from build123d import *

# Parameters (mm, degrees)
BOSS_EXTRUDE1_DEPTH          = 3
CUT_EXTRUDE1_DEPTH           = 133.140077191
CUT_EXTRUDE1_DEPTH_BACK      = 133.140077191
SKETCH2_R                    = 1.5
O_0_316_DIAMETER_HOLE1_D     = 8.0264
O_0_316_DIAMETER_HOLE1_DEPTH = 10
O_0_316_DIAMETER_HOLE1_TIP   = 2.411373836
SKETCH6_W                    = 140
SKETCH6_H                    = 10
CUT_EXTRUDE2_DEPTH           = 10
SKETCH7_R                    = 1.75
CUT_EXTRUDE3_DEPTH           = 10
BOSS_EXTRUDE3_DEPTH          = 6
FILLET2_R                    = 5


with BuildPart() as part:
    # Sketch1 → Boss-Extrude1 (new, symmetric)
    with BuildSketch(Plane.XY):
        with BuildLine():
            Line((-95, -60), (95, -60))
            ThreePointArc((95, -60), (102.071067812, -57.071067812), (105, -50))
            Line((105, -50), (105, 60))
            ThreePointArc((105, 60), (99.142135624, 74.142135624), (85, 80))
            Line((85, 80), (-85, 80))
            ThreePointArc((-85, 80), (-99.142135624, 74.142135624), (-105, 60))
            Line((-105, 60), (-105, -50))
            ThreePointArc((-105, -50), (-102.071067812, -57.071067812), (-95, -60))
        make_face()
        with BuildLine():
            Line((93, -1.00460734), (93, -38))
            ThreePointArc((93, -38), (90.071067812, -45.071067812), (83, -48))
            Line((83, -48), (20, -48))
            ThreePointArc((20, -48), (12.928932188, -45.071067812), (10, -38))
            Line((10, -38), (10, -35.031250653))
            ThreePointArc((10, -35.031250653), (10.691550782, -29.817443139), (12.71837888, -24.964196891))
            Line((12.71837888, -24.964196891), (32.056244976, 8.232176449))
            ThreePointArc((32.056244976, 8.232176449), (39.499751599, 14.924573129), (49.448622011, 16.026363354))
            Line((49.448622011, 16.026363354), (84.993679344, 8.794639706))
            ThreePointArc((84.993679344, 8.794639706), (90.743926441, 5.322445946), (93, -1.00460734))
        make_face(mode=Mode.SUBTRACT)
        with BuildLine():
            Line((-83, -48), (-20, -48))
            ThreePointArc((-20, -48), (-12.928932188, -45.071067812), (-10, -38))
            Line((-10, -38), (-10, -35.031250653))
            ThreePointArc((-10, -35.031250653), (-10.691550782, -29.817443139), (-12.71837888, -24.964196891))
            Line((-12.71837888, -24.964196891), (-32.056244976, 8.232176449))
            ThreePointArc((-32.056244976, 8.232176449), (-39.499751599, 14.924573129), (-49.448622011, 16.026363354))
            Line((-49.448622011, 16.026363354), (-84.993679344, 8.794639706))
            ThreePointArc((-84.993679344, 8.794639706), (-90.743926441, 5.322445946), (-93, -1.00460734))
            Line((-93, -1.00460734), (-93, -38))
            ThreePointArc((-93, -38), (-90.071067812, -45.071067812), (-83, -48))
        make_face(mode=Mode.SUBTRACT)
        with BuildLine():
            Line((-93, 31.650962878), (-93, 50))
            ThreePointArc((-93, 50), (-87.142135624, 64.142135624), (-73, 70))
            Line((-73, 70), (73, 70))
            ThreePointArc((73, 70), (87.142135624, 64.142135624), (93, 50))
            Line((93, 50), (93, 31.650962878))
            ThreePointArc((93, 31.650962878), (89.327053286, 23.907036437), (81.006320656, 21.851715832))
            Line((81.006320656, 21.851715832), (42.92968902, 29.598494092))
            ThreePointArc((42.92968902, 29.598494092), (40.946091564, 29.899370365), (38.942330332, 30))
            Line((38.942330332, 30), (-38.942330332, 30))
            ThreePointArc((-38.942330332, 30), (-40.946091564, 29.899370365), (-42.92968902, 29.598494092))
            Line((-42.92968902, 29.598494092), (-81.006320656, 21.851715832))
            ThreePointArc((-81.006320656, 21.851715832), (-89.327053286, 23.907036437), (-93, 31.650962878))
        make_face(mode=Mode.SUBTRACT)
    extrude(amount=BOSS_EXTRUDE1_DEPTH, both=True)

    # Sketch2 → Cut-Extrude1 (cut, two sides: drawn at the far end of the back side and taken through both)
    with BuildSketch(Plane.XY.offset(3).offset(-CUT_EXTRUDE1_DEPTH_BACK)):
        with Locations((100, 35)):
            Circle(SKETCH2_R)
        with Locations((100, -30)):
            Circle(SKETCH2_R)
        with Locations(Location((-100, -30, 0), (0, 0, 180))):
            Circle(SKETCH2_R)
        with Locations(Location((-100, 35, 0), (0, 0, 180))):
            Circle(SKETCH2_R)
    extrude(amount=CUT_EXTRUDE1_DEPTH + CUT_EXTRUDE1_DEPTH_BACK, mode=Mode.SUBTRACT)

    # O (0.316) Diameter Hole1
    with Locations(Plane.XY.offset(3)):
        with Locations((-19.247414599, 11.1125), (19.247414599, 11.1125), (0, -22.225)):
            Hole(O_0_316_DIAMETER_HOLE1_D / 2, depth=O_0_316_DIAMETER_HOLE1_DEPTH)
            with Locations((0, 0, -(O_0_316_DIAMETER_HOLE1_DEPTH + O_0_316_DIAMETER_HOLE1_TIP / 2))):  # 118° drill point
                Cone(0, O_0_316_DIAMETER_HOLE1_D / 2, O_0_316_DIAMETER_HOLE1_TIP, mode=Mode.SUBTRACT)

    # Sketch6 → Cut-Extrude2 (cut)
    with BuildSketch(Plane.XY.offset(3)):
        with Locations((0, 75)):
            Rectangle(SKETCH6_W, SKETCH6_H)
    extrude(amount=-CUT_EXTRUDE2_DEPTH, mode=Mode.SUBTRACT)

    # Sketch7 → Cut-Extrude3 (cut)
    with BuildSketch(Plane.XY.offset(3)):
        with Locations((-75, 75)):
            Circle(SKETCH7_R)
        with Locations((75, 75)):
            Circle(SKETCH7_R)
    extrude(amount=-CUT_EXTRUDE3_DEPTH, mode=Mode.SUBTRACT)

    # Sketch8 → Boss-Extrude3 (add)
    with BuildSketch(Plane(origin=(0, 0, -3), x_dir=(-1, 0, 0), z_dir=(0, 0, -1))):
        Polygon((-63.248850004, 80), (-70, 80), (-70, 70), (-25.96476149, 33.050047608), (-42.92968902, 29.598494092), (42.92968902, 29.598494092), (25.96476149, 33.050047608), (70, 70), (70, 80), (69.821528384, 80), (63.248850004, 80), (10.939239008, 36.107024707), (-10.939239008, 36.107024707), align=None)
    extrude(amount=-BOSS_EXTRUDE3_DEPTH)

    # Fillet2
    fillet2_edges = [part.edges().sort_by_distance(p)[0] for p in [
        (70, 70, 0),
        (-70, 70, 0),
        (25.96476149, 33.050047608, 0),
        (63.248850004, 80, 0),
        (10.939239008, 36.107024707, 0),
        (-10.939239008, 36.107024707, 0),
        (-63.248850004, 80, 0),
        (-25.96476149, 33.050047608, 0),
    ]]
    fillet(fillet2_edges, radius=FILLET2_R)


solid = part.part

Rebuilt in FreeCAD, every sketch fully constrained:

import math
import FreeCAD as App
import Part
import Sketcher
Q = App.Units.Quantity


def edges_at(feature, points):
    """Names of the edges that pass closest to the given points."""
    edges = feature.Shape.Edges
    near = lambda p: min(range(len(edges)), key=lambda i: edges[i].distToShape(Part.Vertex(*p))[0])
    return sorted({f"Edge{near(p) + 1}" for p in points})


def add_polygon(sketch, points):
    """Adds a closed chain of lines whose ends are joined by coincident constraints."""
    first, n = sketch.GeometryCount, len(points)
    for a, b in zip(points, points[1:] + points[:1]):
        sketch.addGeometry(Part.LineSegment(App.Vector(*a, 0), App.Vector(*b, 0)), False)
    for i in range(n):
        sketch.addConstraint(Sketcher.Constraint("Coincident", first + i, 2, first + (i + 1) % n, 1))

doc = App.newDocument("Part")
body = doc.addObject("PartDesign::Body", "Body")

# Sketch on XY plane
sketch1 = body.newObject("Sketcher::SketchObject", "Sketch")
sketch1.AttachmentSupport = (doc.getObject("XY_Plane"), [""])
sketch1.MapMode = "FlatFace"
sketch1.addGeometry(Part.LineSegment(App.Vector(-95, -60, 0), App.Vector(95, -60, 0)), False)
sketch1.addGeometry(Part.ArcOfCircle(Part.Circle(App.Vector(95, -50, 0), App.Vector(0, 0, 1), 10), math.radians(-90), math.radians(0)), False)
sketch1.addGeometry(Part.LineSegment(App.Vector(105, -50, 0), App.Vector(105, 60, 0)), False)
sketch1.addGeometry(Part.ArcOfCircle(Part.Circle(App.Vector(85, 60, 0), App.Vector(0, 0, 1), 20), math.radians(0), math.radians(90)), False)
sketch1.addGeometry(Part.LineSegment(App.Vector(85, 80, 0), App.Vector(-85, 80, 0)), False)
sketch1.addGeometry(Part.ArcOfCircle(Part.Circle(App.Vector(-85, 60, 0), App.Vector(0, 0, 1), 20), math.radians(90), math.radians(180)), False)
sketch1.addGeometry(Part.LineSegment(App.Vector(-105, 60, 0), App.Vector(-105, -50, 0)), False)
sketch1.addGeometry(Part.ArcOfCircle(Part.Circle(App.Vector(-95, -50, 0), App.Vector(0, 0, 1), 10), math.radians(180), math.radians(270)), False)
sketch1.addGeometry(Part.LineSegment(App.Vector(-20, -48, 0), App.Vector(-83, -48, 0)), False)
sketch1.addGeometry(Part.ArcOfCircle(Part.Circle(App.Vector(-83, -38, 0), App.Vector(0, 0, 1), 10), math.radians(180), math.radians(270)), False)
sketch1.addGeometry(Part.LineSegment(App.Vector(-93, -38, 0), App.Vector(-93, -1.004607, 0)), False)
sketch1.addGeometry(Part.ArcOfCircle(Part.Circle(App.Vector(-83, -1.004607, 0), App.Vector(0, 0, 1), 10), math.radians(101.5), math.radians(180)), False)
sketch1.addGeometry(Part.LineSegment(App.Vector(-84.993679, 8.79464, 0), App.Vector(-49.448622, 16.026363, 0)), False)
sketch1.addGeometry(Part.ArcOfCircle(Part.Circle(App.Vector(-46.188022, 0, 0), App.Vector(0, 0, 1), 16.354689), math.radians(30.222061), math.radians(101.5)), False)
sketch1.addGeometry(Part.LineSegment(App.Vector(-32.056245, 8.232176, 0), App.Vector(-12.718379, -24.964197, 0)), False)
sketch1.addGeometry(Part.ArcOfCircle(Part.Circle(App.Vector(-30, -35.031251, 0), App.Vector(0, 0, 1), 20), math.radians(0), math.radians(30.222061)), False)
sketch1.addGeometry(Part.LineSegment(App.Vector(-10, -35.031251, 0), App.Vector(-10, -38, 0)), False)
sketch1.addGeometry(Part.ArcOfCircle(Part.Circle(App.Vector(-20, -38, 0), App.Vector(0, 0, 1), 10), math.radians(-90), math.radians(0)), False)
sketch1.addGeometry(Part.ArcOfCircle(Part.Circle(App.Vector(83, -1.004607, 0), App.Vector(0, 0, 1), 10), math.radians(0), math.radians(78.5)), False)
sketch1.addGeometry(Part.LineSegment(App.Vector(93, -1.004607, 0), App.Vector(93, -38, 0)), False)
sketch1.addGeometry(Part.ArcOfCircle(Part.Circle(App.Vector(83, -38, 0), App.Vector(0, 0, 1), 10), math.radians(-90), math.radians(0)), False)
sketch1.addGeometry(Part.LineSegment(App.Vector(83, -48, 0), App.Vector(20, -48, 0)), False)
sketch1.addGeometry(Part.ArcOfCircle(Part.Circle(App.Vector(20, -38, 0), App.Vector(0, 0, 1), 10), math.radians(180), math.radians(270)), False)
sketch1.addGeometry(Part.LineSegment(App.Vector(10, -38, 0), App.Vector(10, -35.031251, 0)), False)
sketch1.addGeometry(Part.ArcOfCircle(Part.Circle(App.Vector(30, -35.031251, 0), App.Vector(0, 0, 1), 20), math.radians(149.777939), math.radians(180)), False)
sketch1.addGeometry(Part.LineSegment(App.Vector(12.718379, -24.964197, 0), App.Vector(32.056245, 8.232176, 0)), False)
sketch1.addGeometry(Part.ArcOfCircle(Part.Circle(App.Vector(46.188022, 0, 0), App.Vector(0, 0, 1), 16.354689), math.radians(78.5), math.radians(149.777939)), False)
sketch1.addGeometry(Part.LineSegment(App.Vector(49.448622, 16.026363, 0), App.Vector(84.993679, 8.79464, 0)), False)
sketch1.addGeometry(Part.ArcOfCircle(Part.Circle(App.Vector(-83, 31.650963, 0), App.Vector(0, 0, 1), 10), math.radians(180), math.radians(281.5)), False)
sketch1.addGeometry(Part.LineSegment(App.Vector(-93, 31.650963, 0), App.Vector(-93, 50, 0)), False)
sketch1.addGeometry(Part.ArcOfCircle(Part.Circle(App.Vector(-73, 50, 0), App.Vector(0, 0, 1), 20), math.radians(90), math.radians(180)), False)
sketch1.addGeometry(Part.LineSegment(App.Vector(-73, 70, 0), App.Vector(73, 70, 0)), False)
sketch1.addGeometry(Part.ArcOfCircle(Part.Circle(App.Vector(73, 50, 0), App.Vector(0, 0, 1), 20), math.radians(0), math.radians(90)), False)
sketch1.addGeometry(Part.LineSegment(App.Vector(93, 50, 0), App.Vector(93, 31.650963, 0)), False)
sketch1.addGeometry(Part.ArcOfCircle(Part.Circle(App.Vector(83, 31.650963, 0), App.Vector(0, 0, 1), 10), math.radians(-101.5), math.radians(0)), False)
sketch1.addGeometry(Part.LineSegment(App.Vector(81.006321, 21.851716, 0), App.Vector(42.929689, 29.598494, 0)), False)
sketch1.addGeometry(Part.ArcOfCircle(Part.Circle(App.Vector(38.94233, 10, 0), App.Vector(0, 0, 1), 20), math.radians(78.5), math.radians(90)), False)
sketch1.addGeometry(Part.LineSegment(App.Vector(38.94233, 30, 0), App.Vector(-38.94233, 30, 0)), False)
sketch1.addGeometry(Part.ArcOfCircle(Part.Circle(App.Vector(-38.94233, 10, 0), App.Vector(0, 0, 1), 20), math.radians(90), math.radians(101.5)), False)
sketch1.addGeometry(Part.LineSegment(App.Vector(-42.929689, 29.598494, 0), App.Vector(-81.006321, 21.851716, 0)), False)
sketch1.addConstraint(Sketcher.Constraint("Tangent", 0, 2, 1, 1))
sketch1.addConstraint(Sketcher.Constraint("Tangent", 1, 2, 2, 1))
sketch1.addConstraint(Sketcher.Constraint("Tangent", 2, 2, 3, 1))
sketch1.addConstraint(Sketcher.Constraint("Tangent", 3, 2, 4, 1))
sketch1.addConstraint(Sketcher.Constraint("Tangent", 4, 2, 5, 1))
sketch1.addConstraint(Sketcher.Constraint("Tangent", 5, 2, 6, 1))
sketch1.addConstraint(Sketcher.Constraint("Tangent", 6, 2, 7, 1))
sketch1.addConstraint(Sketcher.Constraint("Tangent", 7, 2, 0, 1))
sketch1.addConstraint(Sketcher.Constraint("Tangent", 8, 2, 9, 2))
sketch1.addConstraint(Sketcher.Constraint("Tangent", 9, 1, 10, 1))
sketch1.addConstraint(Sketcher.Constraint("Tangent", 10, 2, 11, 2))
sketch1.addConstraint(Sketcher.Constraint("Tangent", 11, 1, 12, 1))
sketch1.addConstraint(Sketcher.Constraint("Tangent", 12, 2, 13, 2))
sketch1.addConstraint(Sketcher.Constraint("Tangent", 13, 1, 14, 1))
sketch1.addConstraint(Sketcher.Constraint("Tangent", 14, 2, 15, 2))
sketch1.addConstraint(Sketcher.Constraint("Tangent", 15, 1, 16, 1))
sketch1.addConstraint(Sketcher.Constraint("Tangent", 16, 2, 17, 2))
sketch1.addConstraint(Sketcher.Constraint("Tangent", 17, 1, 8, 1))
sketch1.addConstraint(Sketcher.Constraint("Tangent", 18, 1, 19, 1))
sketch1.addConstraint(Sketcher.Constraint("Tangent", 19, 2, 20, 2))
sketch1.addConstraint(Sketcher.Constraint("Tangent", 20, 1, 21, 1))
sketch1.addConstraint(Sketcher.Constraint("Tangent", 21, 2, 22, 2))
sketch1.addConstraint(Sketcher.Constraint("Tangent", 22, 1, 23, 1))
sketch1.addConstraint(Sketcher.Constraint("Tangent", 23, 2, 24, 2))
sketch1.addConstraint(Sketcher.Constraint("Tangent", 24, 1, 25, 1))
sketch1.addConstraint(Sketcher.Constraint("Tangent", 25, 2, 26, 2))
sketch1.addConstraint(Sketcher.Constraint("Tangent", 26, 1, 27, 1))
sketch1.addConstraint(Sketcher.Constraint("Tangent", 27, 2, 18, 2))
sketch1.addConstraint(Sketcher.Constraint("Tangent", 28, 1, 29, 1))
sketch1.addConstraint(Sketcher.Constraint("Tangent", 29, 2, 30, 2))
sketch1.addConstraint(Sketcher.Constraint("Tangent", 30, 1, 31, 1))
sketch1.addConstraint(Sketcher.Constraint("Tangent", 31, 2, 32, 2))
sketch1.addConstraint(Sketcher.Constraint("Tangent", 32, 1, 33, 1))
sketch1.addConstraint(Sketcher.Constraint("Tangent", 33, 2, 34, 2))
sketch1.addConstraint(Sketcher.Constraint("Tangent", 34, 1, 35, 1))
sketch1.addConstraint(Sketcher.Constraint("Tangent", 35, 2, 36, 1))
sketch1.addConstraint(Sketcher.Constraint("Tangent", 36, 2, 37, 1))
sketch1.addConstraint(Sketcher.Constraint("Tangent", 37, 2, 38, 1))
sketch1.addConstraint(Sketcher.Constraint("Tangent", 38, 2, 39, 1))
sketch1.addConstraint(Sketcher.Constraint("Tangent", 39, 2, 28, 2))
sketch1.addConstraint(Sketcher.Constraint("Horizontal", 0))
sketch1.addConstraint(Sketcher.Constraint("Vertical", 2))
sketch1.addConstraint(Sketcher.Constraint("Horizontal", 4))
sketch1.addConstraint(Sketcher.Constraint("Vertical", 6))
sketch1.addConstraint(Sketcher.Constraint("Horizontal", 8))
sketch1.addConstraint(Sketcher.Constraint("Vertical", 10))
sketch1.addConstraint(Sketcher.Constraint("Vertical", 16))
sketch1.addConstraint(Sketcher.Constraint("Vertical", 19))
sketch1.addConstraint(Sketcher.Constraint("Horizontal", 21))
sketch1.addConstraint(Sketcher.Constraint("Vertical", 23))
sketch1.addConstraint(Sketcher.Constraint("Vertical", 29))
sketch1.addConstraint(Sketcher.Constraint("Horizontal", 31))
sketch1.addConstraint(Sketcher.Constraint("Vertical", 33))
sketch1.addConstraint(Sketcher.Constraint("Horizontal", 37))
sketch1.addConstraint(Sketcher.Constraint("Equal", 3, 5))
sketch1.addConstraint(Sketcher.Constraint("Equal", 1, 7))
sketch1.addConstraint(Sketcher.Constraint("Equal", 7, 9))
sketch1.addConstraint(Sketcher.Constraint("Equal", 9, 11))
sketch1.addConstraint(Sketcher.Constraint("Equal", 5, 15))
sketch1.addConstraint(Sketcher.Constraint("Equal", 11, 17))
sketch1.addConstraint(Sketcher.Constraint("Equal", 17, 18))
sketch1.addConstraint(Sketcher.Constraint("Equal", 18, 20))
sketch1.addConstraint(Sketcher.Constraint("Equal", 20, 22))
sketch1.addConstraint(Sketcher.Constraint("Equal", 15, 24))
sketch1.addConstraint(Sketcher.Constraint("Equal", 13, 26))
sketch1.addConstraint(Sketcher.Constraint("Equal", 22, 28))
sketch1.addConstraint(Sketcher.Constraint("Equal", 24, 30))
sketch1.addConstraint(Sketcher.Constraint("Equal", 30, 32))
sketch1.addConstraint(Sketcher.Constraint("Equal", 28, 34))
sketch1.addConstraint(Sketcher.Constraint("Equal", 32, 36))
sketch1.addConstraint(Sketcher.Constraint("Equal", 36, 38))
sketch1.addConstraint(Sketcher.Constraint("Symmetric", 13, 3, 26, 3, -1, 1))
sketch1.addConstraint(Sketcher.Constraint("Symmetric", 11, 3, 18, 3, -2))
sketch1.addConstraint(Sketcher.Constraint("Symmetric", 17, 3, 22, 3, -2))
sketch1.addConstraint(Sketcher.Constraint("Symmetric", 28, 3, 34, 3, -2))
sketch1.addConstraint(Sketcher.Constraint("Symmetric", 14, 2, 24, 1, -2))
sketch1.addConstraint(Sketcher.Constraint("Parallel", 27, 35))
sketch1.addConstraint(Sketcher.Constraint("Parallel", 12, 39))
sketch1.addConstraint(Sketcher.Constraint("Vertical", 11, 3, 28, 3))
sketch1.addConstraint(Sketcher.Constraint("Radius", 1, Q("10 mm")))
sketch1.addConstraint(Sketcher.Constraint("Radius", 3, Q("20 mm")))
sketch1.addConstraint(Sketcher.Constraint("DistanceX", 0, 1, 0, 2, Q("190 mm")))
sketch1.addConstraint(Sketcher.Constraint("DistanceX", 8, 2, 8, 1, Q("63 mm")))
sketch1.addConstraint(Sketcher.Constraint("DistanceX", 31, 1, 31, 2, Q("146 mm")))
sketch1.addConstraint(Sketcher.Constraint("DistanceY", 2, 1, 2, 2, Q("110 mm")))
sketch1.addConstraint(Sketcher.Constraint("DistanceX", -1, 1, 1, 3, Q("95 mm")))
sketch1.addConstraint(Sketcher.Constraint("DistanceY", 1, 3, -1, 1, Q("50 mm")))
sketch1.addConstraint(Sketcher.Constraint("DistanceY", 9, 3, -1, 1, Q("38 mm")))
sketch1.addConstraint(Sketcher.Constraint("DistanceY", -1, 1, 30, 3, Q("50 mm")))
sketch1.addConstraint(Sketcher.Constraint("DistanceY", -1, 1, 36, 3, Q("10 mm")))
sketch1.addConstraint(Sketcher.Constraint("Angle", 12, Q("11.5 deg")))
sketch1.addConstraint(Sketcher.Constraint("Radius", 13, Q("16.354689 mm")))
sketch1.addConstraint(Sketcher.Constraint("DistanceX", 37, 2, 37, 1, Q("77.884661 mm")))
sketch1.addConstraint(Sketcher.Constraint("DistanceY", 16, 2, 16, 1, Q("2.968749 mm")))
sketch1.addConstraint(Sketcher.Constraint("DistanceY", 10, 1, 10, 2, Q("36.995393 mm")))
pad1 = body.newObject("PartDesign::Pad", "Pad")
pad1.Profile = sketch1
pad1.Length = 6
pad1.Midplane = True

# Sketch on XY plane
sketch2 = body.newObject("Sketcher::SketchObject", "Sketch001")
sketch2.AttachmentSupport = (doc.getObject("XY_Plane"), [""])
sketch2.MapMode = "FlatFace"
sketch2.AttachmentOffset = App.Placement(App.Vector(0, 0, 3), App.Rotation())
sketch2.addGeometry(Part.Circle(App.Vector(100, 35, 0), App.Vector(0, 0, 1), 1.5), False)
sketch2.addGeometry(Part.Circle(App.Vector(100, -30, 0), App.Vector(0, 0, 1), 1.5), False)
sketch2.addGeometry(Part.Circle(App.Vector(-100, -30, 0), App.Vector(0, 0, 1), 1.5), False)
sketch2.addGeometry(Part.Circle(App.Vector(-100, 35, 0), App.Vector(0, 0, 1), 1.5), False)
sketch2.addConstraint(Sketcher.Constraint("Equal", 0, 1))
sketch2.addConstraint(Sketcher.Constraint("Equal", 1, 2))
sketch2.addConstraint(Sketcher.Constraint("Equal", 2, 3))
sketch2.addConstraint(Sketcher.Constraint("Symmetric", 1, 3, 2, 3, -2))
sketch2.addConstraint(Sketcher.Constraint("Symmetric", 0, 3, 3, 3, -2))
sketch2.addConstraint(Sketcher.Constraint("Vertical", 0, 3, 1, 3))
sketch2.addConstraint(Sketcher.Constraint("Diameter", 0, Q("3 mm")))
sketch2.addConstraint(Sketcher.Constraint("DistanceX", -1, 1, 0, 3, Q("100 mm")))
sketch2.addConstraint(Sketcher.Constraint("DistanceY", -1, 1, 0, 3, Q("35 mm")))
sketch2.addConstraint(Sketcher.Constraint("DistanceY", 1, 3, -1, 1, Q("30 mm")))
pocket1 = body.newObject("PartDesign::Pocket", "Pocket")
pocket1.Profile = sketch2
pocket1.Type = "ThroughAll"
pocket1.Midplane = True

# Sketch on XY plane
sketch3 = body.newObject("Sketcher::SketchObject", "Sketch002")
sketch3.AttachmentSupport = (doc.getObject("XY_Plane"), [""])
sketch3.MapMode = "FlatFace"
sketch3.AttachmentOffset = App.Placement(App.Vector(0, 0, 3), App.Rotation())
sketch3.addGeometry(Part.Circle(App.Vector(-19.247415, 11.1125, 0), App.Vector(0, 0, 1), 4.0132), False)
sketch3.addGeometry(Part.Circle(App.Vector(19.247415, 11.1125, 0), App.Vector(0, 0, 1), 4.0132), False)
sketch3.addGeometry(Part.Circle(App.Vector(0, -22.225, 0), App.Vector(0, 0, 1), 4.0132), False)
sketch3.addConstraint(Sketcher.Constraint("Equal", 0, 1))
sketch3.addConstraint(Sketcher.Constraint("Equal", 1, 2))
sketch3.addConstraint(Sketcher.Constraint("Symmetric", 0, 3, 1, 3, -2))
sketch3.addConstraint(Sketcher.Constraint("PointOnObject", 2, 3, -2))
sketch3.addConstraint(Sketcher.Constraint("Diameter", 0, Q("8.0264 mm")))
sketch3.addConstraint(Sketcher.Constraint("DistanceY", 2, 3, -1, 1, Q("22.225 mm")))
sketch3.addConstraint(Sketcher.Constraint("DistanceY", -1, 1, 0, 3, Q("11.1125 mm")))
sketch3.addConstraint(Sketcher.Constraint("DistanceX", 0, 3, 1, 3, Q("38.494829 mm")))
doc.recompute()
hole = body.newObject("PartDesign::Hole", "Hole")
hole.Profile = sketch3
hole.ThreadType = "None"
hole.Diameter = 8.0264
hole.DepthType = "Dimension"
hole.Depth = 10
hole.DrillPoint = "Angled"
hole.DrillPointAngle = 118

# Sketch on XY plane
sketch4 = body.newObject("Sketcher::SketchObject", "Sketch003")
sketch4.AttachmentSupport = (doc.getObject("XY_Plane"), [""])
sketch4.MapMode = "FlatFace"
sketch4.AttachmentOffset = App.Placement(App.Vector(0, 0, 3), App.Rotation())
add_polygon(sketch4, [(-70, 80), (-70, 70), (70, 70), (70, 80)])  # lines 0-3
sketch4.addConstraint(Sketcher.Constraint("Vertical", 0))
sketch4.addConstraint(Sketcher.Constraint("Horizontal", 1))
sketch4.addConstraint(Sketcher.Constraint("Vertical", 2))
sketch4.addConstraint(Sketcher.Constraint("Horizontal", 3))
sketch4.addConstraint(Sketcher.Constraint("DistanceX", 1, 1, 1, 2, Q("140 mm")))
sketch4.addConstraint(Sketcher.Constraint("DistanceY", 0, 2, 0, 1, Q("10 mm")))
sketch4.addConstraint(Sketcher.Constraint("DistanceX", 0, 2, -1, 1, Q("70 mm")))
sketch4.addConstraint(Sketcher.Constraint("DistanceY", -1, 1, 0, 2, Q("70 mm")))
pocket2 = body.newObject("PartDesign::Pocket", "Pocket001")
pocket2.Profile = sketch4
pocket2.Length = 10

# Sketch on XY plane
sketch5 = body.newObject("Sketcher::SketchObject", "Sketch004")
sketch5.AttachmentSupport = (doc.getObject("XY_Plane"), [""])
sketch5.MapMode = "FlatFace"
sketch5.AttachmentOffset = App.Placement(App.Vector(0, 0, 3), App.Rotation())
sketch5.addGeometry(Part.Circle(App.Vector(-75, 75, 0), App.Vector(0, 0, 1), 1.75), False)
sketch5.addGeometry(Part.Circle(App.Vector(75, 75, 0), App.Vector(0, 0, 1), 1.75), False)
sketch5.addConstraint(Sketcher.Constraint("Equal", 0, 1))
sketch5.addConstraint(Sketcher.Constraint("Symmetric", 0, 3, 1, 3, -2))
sketch5.addConstraint(Sketcher.Constraint("Diameter", 0, Q("3.5 mm")))
sketch5.addConstraint(Sketcher.Constraint("DistanceX", 0, 3, -1, 1, Q("75 mm")))
sketch5.addConstraint(Sketcher.Constraint("DistanceY", -1, 1, 0, 3, Q("75 mm")))
pocket3 = body.newObject("PartDesign::Pocket", "Pocket002")
pocket3.Profile = sketch5
pocket3.Length = 10

# Sketch on XY plane
sketch6 = body.newObject("Sketcher::SketchObject", "Sketch005")
sketch6.AttachmentSupport = (doc.getObject("XY_Plane"), [""])
sketch6.MapMode = "FlatFace"
sketch6.AttachmentOffset = App.Placement(App.Vector(0, 0, -3), App.Rotation())
add_polygon(sketch6, [(63.24885, 80), (70, 80), (70, 70), (25.964761, 33.050048), (42.929689, 29.598494), (-42.929689, 29.598494), (-25.964761, 33.050048), (-70, 70), (-70, 80), (-63.24885, 80), (-10.939239, 36.107025), (10.939239, 36.107025)])  # lines 0-11
sketch6.addConstraint(Sketcher.Constraint("Horizontal", 0))
sketch6.addConstraint(Sketcher.Constraint("Vertical", 1))
sketch6.addConstraint(Sketcher.Constraint("Horizontal", 4))
sketch6.addConstraint(Sketcher.Constraint("Vertical", 7))
sketch6.addConstraint(Sketcher.Constraint("Horizontal", 8))
sketch6.addConstraint(Sketcher.Constraint("Horizontal", 10))
sketch6.addConstraint(Sketcher.Constraint("Symmetric", 2, 2, 5, 2, -2))
sketch6.addConstraint(Sketcher.Constraint("Symmetric", 1, 2, 6, 2, -2))
sketch6.addConstraint(Sketcher.Constraint("Symmetric", 8, 2, 11, 2, -2))
sketch6.addConstraint(Sketcher.Constraint("Parallel", 6, 9))
sketch6.addConstraint(Sketcher.Constraint("Parallel", 2, 11))
sketch6.addConstraint(Sketcher.Constraint("Equal", 3, 5))
sketch6.addConstraint(Sketcher.Constraint("DistanceY", 1, 2, 1, 1, Q("10 mm")))
sketch6.addConstraint(Sketcher.Constraint("Angle", 2, Q("-140 deg")))
sketch6.addConstraint(Sketcher.Constraint("DistanceX", -1, 1, 0, 2, Q("70 mm")))
sketch6.addConstraint(Sketcher.Constraint("DistanceY", -1, 1, 0, 2, Q("80 mm")))
sketch6.addConstraint(Sketcher.Constraint("Angle", 3, Q("-11.5 deg")))
sketch6.addConstraint(Sketcher.Constraint("DistanceX", 9, 2, 2, 2, Q("36.904 mm")))
sketch6.addConstraint(Sketcher.Constraint("DistanceX", 0, 1, 0, 2, Q("6.75115 mm")))
sketch6.addConstraint(Sketcher.Constraint("DistanceX", 4, 2, 4, 1, Q("85.859378 mm")))
sketch6.addConstraint(Sketcher.Constraint("DistanceX", 10, 1, 10, 2, Q("21.878478 mm")))
pad2 = body.newObject("PartDesign::Pad", "Pad001")
pad2.Profile = sketch6
pad2.Length = 6
doc.recompute()

fillet = body.newObject("PartDesign::Fillet", "Fillet")
fillet.Base = (pad2, edges_at(pad2, [
    (70, 70, 0),
    (-70, 70, 0),
    (25.965, 33.05, 0),
    (63.249, 80, 0),
    (10.939, 36.107, 0),
    (-10.939, 36.107, 0),
    (-63.249, 80, 0),
    (-25.965, 33.05, 0),
]))
fillet.Radius = 5

doc.recompute()
